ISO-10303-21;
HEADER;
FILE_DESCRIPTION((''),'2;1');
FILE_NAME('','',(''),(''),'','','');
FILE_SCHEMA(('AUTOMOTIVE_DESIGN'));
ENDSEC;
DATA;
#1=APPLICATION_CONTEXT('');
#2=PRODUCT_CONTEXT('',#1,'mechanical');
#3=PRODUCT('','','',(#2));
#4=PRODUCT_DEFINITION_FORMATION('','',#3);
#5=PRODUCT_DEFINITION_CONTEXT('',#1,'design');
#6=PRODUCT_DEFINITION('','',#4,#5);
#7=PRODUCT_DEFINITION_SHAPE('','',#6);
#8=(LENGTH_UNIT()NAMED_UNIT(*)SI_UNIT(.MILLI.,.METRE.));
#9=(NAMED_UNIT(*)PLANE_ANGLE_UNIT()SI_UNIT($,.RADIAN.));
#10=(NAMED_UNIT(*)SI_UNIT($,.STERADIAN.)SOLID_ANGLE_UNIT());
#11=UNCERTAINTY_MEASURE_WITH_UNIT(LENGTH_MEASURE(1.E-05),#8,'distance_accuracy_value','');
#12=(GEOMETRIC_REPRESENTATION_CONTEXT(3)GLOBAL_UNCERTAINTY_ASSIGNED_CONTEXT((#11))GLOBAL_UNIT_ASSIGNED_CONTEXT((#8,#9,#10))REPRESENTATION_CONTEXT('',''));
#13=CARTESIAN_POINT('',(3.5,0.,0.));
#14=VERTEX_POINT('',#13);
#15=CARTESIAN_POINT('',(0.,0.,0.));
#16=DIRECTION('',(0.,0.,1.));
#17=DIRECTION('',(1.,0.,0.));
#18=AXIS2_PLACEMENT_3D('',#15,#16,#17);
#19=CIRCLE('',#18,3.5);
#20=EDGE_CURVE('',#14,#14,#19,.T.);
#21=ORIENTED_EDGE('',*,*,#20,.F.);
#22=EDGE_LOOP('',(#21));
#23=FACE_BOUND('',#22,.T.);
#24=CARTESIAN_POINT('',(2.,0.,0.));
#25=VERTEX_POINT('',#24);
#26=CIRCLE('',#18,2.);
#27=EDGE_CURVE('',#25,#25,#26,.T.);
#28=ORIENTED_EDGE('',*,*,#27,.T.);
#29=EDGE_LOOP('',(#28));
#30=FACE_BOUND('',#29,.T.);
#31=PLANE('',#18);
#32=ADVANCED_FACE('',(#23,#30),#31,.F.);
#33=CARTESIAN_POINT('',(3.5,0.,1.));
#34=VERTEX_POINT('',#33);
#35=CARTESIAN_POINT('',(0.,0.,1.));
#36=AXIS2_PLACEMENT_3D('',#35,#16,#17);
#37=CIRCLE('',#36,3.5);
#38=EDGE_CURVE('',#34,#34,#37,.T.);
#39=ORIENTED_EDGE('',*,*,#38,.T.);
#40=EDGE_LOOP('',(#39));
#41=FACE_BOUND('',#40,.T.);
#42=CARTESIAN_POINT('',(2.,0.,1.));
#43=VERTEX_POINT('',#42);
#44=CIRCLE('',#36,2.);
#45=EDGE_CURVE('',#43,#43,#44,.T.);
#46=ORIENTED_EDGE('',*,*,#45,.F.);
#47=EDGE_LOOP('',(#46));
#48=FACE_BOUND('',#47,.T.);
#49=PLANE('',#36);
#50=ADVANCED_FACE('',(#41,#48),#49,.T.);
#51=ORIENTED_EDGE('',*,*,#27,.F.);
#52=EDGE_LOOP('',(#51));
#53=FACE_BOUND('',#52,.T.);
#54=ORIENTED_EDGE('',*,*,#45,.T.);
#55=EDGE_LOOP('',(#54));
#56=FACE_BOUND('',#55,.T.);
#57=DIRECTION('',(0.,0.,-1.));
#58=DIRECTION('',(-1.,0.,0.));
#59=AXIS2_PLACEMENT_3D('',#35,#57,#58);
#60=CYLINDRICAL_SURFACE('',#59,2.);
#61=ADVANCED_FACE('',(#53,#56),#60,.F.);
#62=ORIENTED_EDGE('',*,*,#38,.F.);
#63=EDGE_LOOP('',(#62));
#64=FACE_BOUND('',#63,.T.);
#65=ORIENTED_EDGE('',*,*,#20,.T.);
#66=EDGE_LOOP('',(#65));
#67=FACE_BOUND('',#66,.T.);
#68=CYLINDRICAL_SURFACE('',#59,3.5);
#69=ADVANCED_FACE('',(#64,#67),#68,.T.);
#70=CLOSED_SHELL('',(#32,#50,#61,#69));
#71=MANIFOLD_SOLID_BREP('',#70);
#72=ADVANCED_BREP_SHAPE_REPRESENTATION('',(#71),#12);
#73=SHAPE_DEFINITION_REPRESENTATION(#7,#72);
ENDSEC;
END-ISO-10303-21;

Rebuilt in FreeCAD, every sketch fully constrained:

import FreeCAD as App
import Part
import Sketcher

doc = App.newDocument("Part")
params = doc.addObject("Spreadsheet::Sheet", "Params")
for row, (alias, value) in enumerate([
    ("sketch1_diameter", "7 mm"),
    ("sketch1_diameter2", "4 mm"),
    ("pad1_length", "1 mm"),
], start=1):
    params.set(f"A{row}", alias)
    params.set(f"B{row}", "=" + value)
    params.setAlias(f"B{row}", alias)

body = doc.addObject("PartDesign::Body", "Body")

sketch1 = body.newObject("Sketcher::SketchObject", "Sketch")
sketch1.AttachmentSupport = (doc.getObject("XY_Plane"), [""])
sketch1.MapMode = "FlatFace"
sketch1.addGeometry(Part.Circle(App.Vector(0, 0, 0), App.Vector(0, 0, 1), 3.5), False)
sketch1.addGeometry(Part.Circle(App.Vector(0, 0, 0), App.Vector(0, 0, 1), 2), False)
sketch1.addConstraint(Sketcher.Constraint("Coincident", 0, 3, -1, 1))
sketch1.addConstraint(Sketcher.Constraint("Coincident", 1, 3, -1, 1))
sketch1.addConstraint(Sketcher.Constraint("Diameter", 0, 7.0))
sketch1.addConstraint(Sketcher.Constraint("Diameter", 1, 4.0))
sketch1.setExpression("Constraints[2]", "Params.sketch1_diameter")
sketch1.setExpression("Constraints[3]", "Params.sketch1_diameter2")
pad1 = body.newObject("PartDesign::Pad", "Pad")
pad1.Profile = sketch1
pad1.setExpression("Length", "Params.pad1_length")

doc.recompute()
